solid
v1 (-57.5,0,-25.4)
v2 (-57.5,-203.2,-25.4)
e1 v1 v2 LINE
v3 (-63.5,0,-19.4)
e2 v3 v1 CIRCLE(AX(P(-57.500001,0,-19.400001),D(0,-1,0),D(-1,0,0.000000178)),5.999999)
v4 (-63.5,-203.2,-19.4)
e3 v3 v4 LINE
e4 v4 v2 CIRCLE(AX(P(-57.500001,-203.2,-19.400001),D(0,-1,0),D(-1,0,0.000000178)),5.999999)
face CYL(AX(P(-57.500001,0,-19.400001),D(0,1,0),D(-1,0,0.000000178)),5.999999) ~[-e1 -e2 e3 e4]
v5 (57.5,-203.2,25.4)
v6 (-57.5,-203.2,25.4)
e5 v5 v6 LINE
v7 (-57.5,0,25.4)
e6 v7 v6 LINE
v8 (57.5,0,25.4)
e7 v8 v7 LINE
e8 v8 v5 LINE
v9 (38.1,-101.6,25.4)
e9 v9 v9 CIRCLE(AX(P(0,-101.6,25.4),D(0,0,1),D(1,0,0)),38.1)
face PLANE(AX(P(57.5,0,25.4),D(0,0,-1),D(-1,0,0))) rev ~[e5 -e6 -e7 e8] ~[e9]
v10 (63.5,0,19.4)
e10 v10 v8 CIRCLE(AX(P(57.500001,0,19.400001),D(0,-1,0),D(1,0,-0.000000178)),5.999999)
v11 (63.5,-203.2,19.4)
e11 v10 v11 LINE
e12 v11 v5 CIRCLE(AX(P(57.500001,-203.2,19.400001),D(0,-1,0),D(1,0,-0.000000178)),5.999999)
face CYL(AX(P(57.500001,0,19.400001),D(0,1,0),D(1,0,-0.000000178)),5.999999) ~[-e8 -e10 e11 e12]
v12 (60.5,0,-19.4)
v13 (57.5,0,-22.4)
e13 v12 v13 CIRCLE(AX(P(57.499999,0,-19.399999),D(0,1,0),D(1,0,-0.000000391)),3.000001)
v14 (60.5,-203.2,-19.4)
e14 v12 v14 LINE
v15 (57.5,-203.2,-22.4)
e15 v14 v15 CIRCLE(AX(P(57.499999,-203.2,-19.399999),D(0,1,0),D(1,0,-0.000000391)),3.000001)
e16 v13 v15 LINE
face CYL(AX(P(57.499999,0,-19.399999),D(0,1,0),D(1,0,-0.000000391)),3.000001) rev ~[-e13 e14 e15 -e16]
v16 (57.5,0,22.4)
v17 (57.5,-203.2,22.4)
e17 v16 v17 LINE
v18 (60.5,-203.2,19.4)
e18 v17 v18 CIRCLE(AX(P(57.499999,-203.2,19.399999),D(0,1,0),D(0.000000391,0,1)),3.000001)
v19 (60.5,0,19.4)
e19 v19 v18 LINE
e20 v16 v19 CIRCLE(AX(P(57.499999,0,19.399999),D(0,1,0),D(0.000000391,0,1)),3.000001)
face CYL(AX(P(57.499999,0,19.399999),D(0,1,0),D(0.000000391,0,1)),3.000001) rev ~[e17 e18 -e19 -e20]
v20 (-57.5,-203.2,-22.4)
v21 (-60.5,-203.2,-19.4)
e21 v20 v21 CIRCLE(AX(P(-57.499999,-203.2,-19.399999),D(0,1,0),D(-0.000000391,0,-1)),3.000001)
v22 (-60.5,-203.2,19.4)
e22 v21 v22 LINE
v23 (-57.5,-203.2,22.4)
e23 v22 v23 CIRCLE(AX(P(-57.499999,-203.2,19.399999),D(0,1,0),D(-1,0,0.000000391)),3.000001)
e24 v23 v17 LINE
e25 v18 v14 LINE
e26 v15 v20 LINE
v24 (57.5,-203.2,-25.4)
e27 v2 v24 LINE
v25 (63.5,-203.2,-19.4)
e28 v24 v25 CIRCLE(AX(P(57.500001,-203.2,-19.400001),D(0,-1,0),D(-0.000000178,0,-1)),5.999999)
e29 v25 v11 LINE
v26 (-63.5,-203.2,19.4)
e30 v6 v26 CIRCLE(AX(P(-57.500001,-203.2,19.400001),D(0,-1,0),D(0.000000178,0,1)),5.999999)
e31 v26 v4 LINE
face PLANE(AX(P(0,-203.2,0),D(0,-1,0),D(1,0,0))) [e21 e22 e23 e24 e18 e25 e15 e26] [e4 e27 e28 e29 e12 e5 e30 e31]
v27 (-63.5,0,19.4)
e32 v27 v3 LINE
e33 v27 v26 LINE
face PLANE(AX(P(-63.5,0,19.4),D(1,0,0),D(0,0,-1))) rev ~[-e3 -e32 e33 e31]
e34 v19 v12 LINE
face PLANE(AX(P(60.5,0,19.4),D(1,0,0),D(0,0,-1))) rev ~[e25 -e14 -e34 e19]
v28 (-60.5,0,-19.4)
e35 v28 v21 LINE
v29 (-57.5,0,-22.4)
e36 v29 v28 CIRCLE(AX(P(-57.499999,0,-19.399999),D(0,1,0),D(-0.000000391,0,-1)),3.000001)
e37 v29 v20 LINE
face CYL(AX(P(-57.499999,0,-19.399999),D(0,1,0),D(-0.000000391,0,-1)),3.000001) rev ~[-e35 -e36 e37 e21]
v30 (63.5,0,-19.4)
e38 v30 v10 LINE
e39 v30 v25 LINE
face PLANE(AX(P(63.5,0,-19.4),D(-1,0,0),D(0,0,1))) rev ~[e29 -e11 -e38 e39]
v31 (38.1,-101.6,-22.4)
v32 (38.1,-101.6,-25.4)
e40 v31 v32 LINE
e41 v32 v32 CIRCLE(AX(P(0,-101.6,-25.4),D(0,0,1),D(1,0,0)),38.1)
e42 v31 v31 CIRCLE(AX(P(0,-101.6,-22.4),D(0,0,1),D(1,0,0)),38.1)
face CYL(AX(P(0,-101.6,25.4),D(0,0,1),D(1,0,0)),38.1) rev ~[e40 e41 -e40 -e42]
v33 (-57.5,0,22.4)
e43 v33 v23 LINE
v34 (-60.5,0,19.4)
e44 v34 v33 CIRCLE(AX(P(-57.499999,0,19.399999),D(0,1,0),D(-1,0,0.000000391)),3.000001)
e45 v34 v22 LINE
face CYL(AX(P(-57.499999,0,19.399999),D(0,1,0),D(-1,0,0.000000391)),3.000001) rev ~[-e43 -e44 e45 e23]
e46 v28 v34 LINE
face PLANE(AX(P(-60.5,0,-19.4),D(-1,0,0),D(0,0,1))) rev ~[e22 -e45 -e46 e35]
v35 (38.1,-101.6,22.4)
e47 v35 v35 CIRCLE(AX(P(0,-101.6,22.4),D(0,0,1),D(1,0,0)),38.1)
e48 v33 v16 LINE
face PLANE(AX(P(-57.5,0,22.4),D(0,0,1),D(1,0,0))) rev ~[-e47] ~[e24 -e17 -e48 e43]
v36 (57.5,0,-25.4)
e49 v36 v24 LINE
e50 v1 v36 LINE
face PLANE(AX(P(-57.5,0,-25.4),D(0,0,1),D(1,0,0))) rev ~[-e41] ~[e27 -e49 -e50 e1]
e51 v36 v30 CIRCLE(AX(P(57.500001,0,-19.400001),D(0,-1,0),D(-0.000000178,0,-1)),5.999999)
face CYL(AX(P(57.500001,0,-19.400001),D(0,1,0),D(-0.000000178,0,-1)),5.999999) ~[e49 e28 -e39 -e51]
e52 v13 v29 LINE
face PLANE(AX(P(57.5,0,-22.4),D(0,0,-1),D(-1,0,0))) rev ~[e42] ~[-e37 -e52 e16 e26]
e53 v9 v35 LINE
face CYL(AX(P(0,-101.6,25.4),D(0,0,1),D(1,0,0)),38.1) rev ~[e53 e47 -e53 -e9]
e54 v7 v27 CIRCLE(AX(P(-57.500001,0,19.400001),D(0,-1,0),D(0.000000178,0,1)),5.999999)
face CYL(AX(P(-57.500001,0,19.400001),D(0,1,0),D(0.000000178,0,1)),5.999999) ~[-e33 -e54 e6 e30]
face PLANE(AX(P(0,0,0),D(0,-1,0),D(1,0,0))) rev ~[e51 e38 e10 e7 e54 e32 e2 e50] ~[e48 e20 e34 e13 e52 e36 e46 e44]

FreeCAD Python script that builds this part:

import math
import FreeCAD as App
import Part
import Sketcher
Q = App.Units.Quantity

doc = App.newDocument("Part")
params = doc.addObject("Spreadsheet::Sheet", "Params")
for row, (alias, value) in enumerate([
    ("sketch1_radius", "5.999999 mm"),
    ("sketch1_radius2", "3.000001 mm"),
    ("sketch1_width", "115 mm"),
    ("sketch1_height", "38.8 mm"),
    ("pad1_length", "203.2 mm"),
    ("sketch2_diameter", "76.2 mm"),
], start=1):
    params.set(f"A{row}", alias)
    params.set(f"B{row}", "=" + value)
    params.setAlias(f"B{row}", alias)

body = doc.addObject("PartDesign::Body", "Body")

# Sketch on XZ plane
sketch1 = body.newObject("Sketcher::SketchObject", "Sketch")
sketch1.AttachmentSupport = (doc.getObject("XZ_Plane"), [""])
sketch1.MapMode = "FlatFace"
sketch1.addGeometry([
    Part.LineSegment(App.Vector(-57.5, -25.4, 0), App.Vector(57.5, -25.4, 0)),  # 0
    Part.ArcOfCircle(Part.Circle(App.Vector(57.5, -19.4, 0), App.Vector(0, 0, 1), 6), math.radians(-90), math.radians(0)),  # 1
    Part.LineSegment(App.Vector(63.5, -19.4, 0), App.Vector(63.5, 19.4, 0)),  # 2
    Part.ArcOfCircle(Part.Circle(App.Vector(57.5, 19.4, 0), App.Vector(0, 0, 1), 6), math.radians(0), math.radians(90)),  # 3
    Part.LineSegment(App.Vector(57.5, 25.4, 0), App.Vector(-57.5, 25.4, 0)),  # 4
    Part.ArcOfCircle(Part.Circle(App.Vector(-57.5, 19.4, 0), App.Vector(0, 0, 1), 6), math.radians(90), math.radians(180)),  # 5
    Part.LineSegment(App.Vector(-63.5, 19.4, 0), App.Vector(-63.5, -19.4, 0)),  # 6
    Part.ArcOfCircle(Part.Circle(App.Vector(-57.5, -19.4, 0), App.Vector(0, 0, 1), 6), math.radians(180), math.radians(270)),  # 7
    Part.LineSegment(App.Vector(60.5, 19.4, 0), App.Vector(60.5, -19.4, 0)),  # 8
    Part.ArcOfCircle(Part.Circle(App.Vector(57.5, -19.4, 0), App.Vector(0, 0, 1), 3), math.radians(-90), math.radians(0)),  # 9
    Part.LineSegment(App.Vector(57.5, -22.4, 0), App.Vector(-57.5, -22.4, 0)),  # 10
    Part.ArcOfCircle(Part.Circle(App.Vector(-57.5, -19.4, 0), App.Vector(0, 0, 1), 3), math.radians(-180), math.radians(-90)),  # 11
    Part.LineSegment(App.Vector(-60.5, -19.4, 0), App.Vector(-60.5, 19.4, 0)),  # 12
    Part.ArcOfCircle(Part.Circle(App.Vector(-57.5, 19.4, 0), App.Vector(0, 0, 1), 3), math.radians(90), math.radians(180)),  # 13
    Part.LineSegment(App.Vector(-57.5, 22.4, 0), App.Vector(57.5, 22.4, 0)),  # 14
    Part.ArcOfCircle(Part.Circle(App.Vector(57.5, 19.4, 0), App.Vector(0, 0, 1), 3), math.radians(0), math.radians(90)),  # 15
], False)
sketch1.addConstraint([
    Sketcher.Constraint("Tangent", 0, 2, 1, 1),
    Sketcher.Constraint("Tangent", 1, 2, 2, 1),
    Sketcher.Constraint("Tangent", 2, 2, 3, 1),
    Sketcher.Constraint("Tangent", 3, 2, 4, 1),
    Sketcher.Constraint("Tangent", 4, 2, 5, 1),
    Sketcher.Constraint("Tangent", 5, 2, 6, 1),
    Sketcher.Constraint("Tangent", 6, 2, 7, 1),
    Sketcher.Constraint("Tangent", 7, 2, 0, 1),
    Sketcher.Constraint("Tangent", 8, 2, 9, 2),
    Sketcher.Constraint("Tangent", 9, 1, 10, 1),
    Sketcher.Constraint("Tangent", 10, 2, 11, 2),
    Sketcher.Constraint("Tangent", 11, 1, 12, 1),
    Sketcher.Constraint("Tangent", 12, 2, 13, 2),
    Sketcher.Constraint("Tangent", 13, 1, 14, 1),
    Sketcher.Constraint("Tangent", 14, 2, 15, 2),
    Sketcher.Constraint("Tangent", 15, 1, 8, 1),
    Sketcher.Constraint("Horizontal", 0),
    Sketcher.Constraint("Vertical", 2),
    Sketcher.Constraint("Horizontal", 4),
    Sketcher.Constraint("Vertical", 6),
    Sketcher.Constraint("Vertical", 8),
    Sketcher.Constraint("Horizontal", 10),
    Sketcher.Constraint("Vertical", 12),
    Sketcher.Constraint("Horizontal", 14),
    Sketcher.Constraint("Coincident", 9, 3, 1, 3),
    Sketcher.Constraint("Coincident", 11, 3, 7, 3),
    Sketcher.Constraint("Coincident", 13, 3, 5, 3),
    Sketcher.Constraint("Equal", 1, 3),
    Sketcher.Constraint("Equal", 3, 5),
    Sketcher.Constraint("Equal", 5, 7),
    Sketcher.Constraint("Equal", 13, 15),
    Sketcher.Constraint("Symmetric", 1, 3, 5, 3, -1, 1),
    Sketcher.Constraint("Radius", 1, Q("5.999999 mm")),
    Sketcher.Constraint("Radius", 9, Q("3.000001 mm")),
    Sketcher.Constraint("DistanceX", 0, 1, 0, 2, Q("115 mm")),
    Sketcher.Constraint("DistanceY", 2, 1, 2, 2, Q("38.8 mm")),
])
sketch1.setExpression("Constraints[32]", "Params.sketch1_radius")
sketch1.setExpression("Constraints[33]", "Params.sketch1_radius2")
sketch1.setExpression("Constraints[34]", "Params.sketch1_width")
sketch1.setExpression("Constraints[35]", "Params.sketch1_height")
pad1 = body.newObject("PartDesign::Pad", "Pad")
pad1.Profile = sketch1
pad1.setExpression("Length", "Params.pad1_length")

# Sketch on XY plane
sketch2 = body.newObject("Sketcher::SketchObject", "Sketch001")
sketch2.AttachmentSupport = (doc.getObject("XY_Plane"), [""])
sketch2.MapMode = "FlatFace"
sketch2.AttachmentOffset = App.Placement(App.Vector(0, 0, 25.4), App.Rotation())
sketch2.addGeometry(Part.Circle(App.Vector(0, -102, 0), App.Vector(0, 0, 1), 38), False)
sketch2.addConstraint([
    Sketcher.Constraint("PointOnObject", 0, 3, -2),
    Sketcher.Constraint("Diameter", 0, Q("76.2 mm")),
    Sketcher.Constraint("DistanceY", 0, 3, -1, 1, Q("101.6 mm")),
])
sketch2.setExpression("Constraints[1]", "Params.sketch2_diameter")
pocket1 = body.newObject("PartDesign::Pocket", "Pocket")
pocket1.Profile = sketch2
pocket1.Type = "ThroughAll"

doc.recompute()
